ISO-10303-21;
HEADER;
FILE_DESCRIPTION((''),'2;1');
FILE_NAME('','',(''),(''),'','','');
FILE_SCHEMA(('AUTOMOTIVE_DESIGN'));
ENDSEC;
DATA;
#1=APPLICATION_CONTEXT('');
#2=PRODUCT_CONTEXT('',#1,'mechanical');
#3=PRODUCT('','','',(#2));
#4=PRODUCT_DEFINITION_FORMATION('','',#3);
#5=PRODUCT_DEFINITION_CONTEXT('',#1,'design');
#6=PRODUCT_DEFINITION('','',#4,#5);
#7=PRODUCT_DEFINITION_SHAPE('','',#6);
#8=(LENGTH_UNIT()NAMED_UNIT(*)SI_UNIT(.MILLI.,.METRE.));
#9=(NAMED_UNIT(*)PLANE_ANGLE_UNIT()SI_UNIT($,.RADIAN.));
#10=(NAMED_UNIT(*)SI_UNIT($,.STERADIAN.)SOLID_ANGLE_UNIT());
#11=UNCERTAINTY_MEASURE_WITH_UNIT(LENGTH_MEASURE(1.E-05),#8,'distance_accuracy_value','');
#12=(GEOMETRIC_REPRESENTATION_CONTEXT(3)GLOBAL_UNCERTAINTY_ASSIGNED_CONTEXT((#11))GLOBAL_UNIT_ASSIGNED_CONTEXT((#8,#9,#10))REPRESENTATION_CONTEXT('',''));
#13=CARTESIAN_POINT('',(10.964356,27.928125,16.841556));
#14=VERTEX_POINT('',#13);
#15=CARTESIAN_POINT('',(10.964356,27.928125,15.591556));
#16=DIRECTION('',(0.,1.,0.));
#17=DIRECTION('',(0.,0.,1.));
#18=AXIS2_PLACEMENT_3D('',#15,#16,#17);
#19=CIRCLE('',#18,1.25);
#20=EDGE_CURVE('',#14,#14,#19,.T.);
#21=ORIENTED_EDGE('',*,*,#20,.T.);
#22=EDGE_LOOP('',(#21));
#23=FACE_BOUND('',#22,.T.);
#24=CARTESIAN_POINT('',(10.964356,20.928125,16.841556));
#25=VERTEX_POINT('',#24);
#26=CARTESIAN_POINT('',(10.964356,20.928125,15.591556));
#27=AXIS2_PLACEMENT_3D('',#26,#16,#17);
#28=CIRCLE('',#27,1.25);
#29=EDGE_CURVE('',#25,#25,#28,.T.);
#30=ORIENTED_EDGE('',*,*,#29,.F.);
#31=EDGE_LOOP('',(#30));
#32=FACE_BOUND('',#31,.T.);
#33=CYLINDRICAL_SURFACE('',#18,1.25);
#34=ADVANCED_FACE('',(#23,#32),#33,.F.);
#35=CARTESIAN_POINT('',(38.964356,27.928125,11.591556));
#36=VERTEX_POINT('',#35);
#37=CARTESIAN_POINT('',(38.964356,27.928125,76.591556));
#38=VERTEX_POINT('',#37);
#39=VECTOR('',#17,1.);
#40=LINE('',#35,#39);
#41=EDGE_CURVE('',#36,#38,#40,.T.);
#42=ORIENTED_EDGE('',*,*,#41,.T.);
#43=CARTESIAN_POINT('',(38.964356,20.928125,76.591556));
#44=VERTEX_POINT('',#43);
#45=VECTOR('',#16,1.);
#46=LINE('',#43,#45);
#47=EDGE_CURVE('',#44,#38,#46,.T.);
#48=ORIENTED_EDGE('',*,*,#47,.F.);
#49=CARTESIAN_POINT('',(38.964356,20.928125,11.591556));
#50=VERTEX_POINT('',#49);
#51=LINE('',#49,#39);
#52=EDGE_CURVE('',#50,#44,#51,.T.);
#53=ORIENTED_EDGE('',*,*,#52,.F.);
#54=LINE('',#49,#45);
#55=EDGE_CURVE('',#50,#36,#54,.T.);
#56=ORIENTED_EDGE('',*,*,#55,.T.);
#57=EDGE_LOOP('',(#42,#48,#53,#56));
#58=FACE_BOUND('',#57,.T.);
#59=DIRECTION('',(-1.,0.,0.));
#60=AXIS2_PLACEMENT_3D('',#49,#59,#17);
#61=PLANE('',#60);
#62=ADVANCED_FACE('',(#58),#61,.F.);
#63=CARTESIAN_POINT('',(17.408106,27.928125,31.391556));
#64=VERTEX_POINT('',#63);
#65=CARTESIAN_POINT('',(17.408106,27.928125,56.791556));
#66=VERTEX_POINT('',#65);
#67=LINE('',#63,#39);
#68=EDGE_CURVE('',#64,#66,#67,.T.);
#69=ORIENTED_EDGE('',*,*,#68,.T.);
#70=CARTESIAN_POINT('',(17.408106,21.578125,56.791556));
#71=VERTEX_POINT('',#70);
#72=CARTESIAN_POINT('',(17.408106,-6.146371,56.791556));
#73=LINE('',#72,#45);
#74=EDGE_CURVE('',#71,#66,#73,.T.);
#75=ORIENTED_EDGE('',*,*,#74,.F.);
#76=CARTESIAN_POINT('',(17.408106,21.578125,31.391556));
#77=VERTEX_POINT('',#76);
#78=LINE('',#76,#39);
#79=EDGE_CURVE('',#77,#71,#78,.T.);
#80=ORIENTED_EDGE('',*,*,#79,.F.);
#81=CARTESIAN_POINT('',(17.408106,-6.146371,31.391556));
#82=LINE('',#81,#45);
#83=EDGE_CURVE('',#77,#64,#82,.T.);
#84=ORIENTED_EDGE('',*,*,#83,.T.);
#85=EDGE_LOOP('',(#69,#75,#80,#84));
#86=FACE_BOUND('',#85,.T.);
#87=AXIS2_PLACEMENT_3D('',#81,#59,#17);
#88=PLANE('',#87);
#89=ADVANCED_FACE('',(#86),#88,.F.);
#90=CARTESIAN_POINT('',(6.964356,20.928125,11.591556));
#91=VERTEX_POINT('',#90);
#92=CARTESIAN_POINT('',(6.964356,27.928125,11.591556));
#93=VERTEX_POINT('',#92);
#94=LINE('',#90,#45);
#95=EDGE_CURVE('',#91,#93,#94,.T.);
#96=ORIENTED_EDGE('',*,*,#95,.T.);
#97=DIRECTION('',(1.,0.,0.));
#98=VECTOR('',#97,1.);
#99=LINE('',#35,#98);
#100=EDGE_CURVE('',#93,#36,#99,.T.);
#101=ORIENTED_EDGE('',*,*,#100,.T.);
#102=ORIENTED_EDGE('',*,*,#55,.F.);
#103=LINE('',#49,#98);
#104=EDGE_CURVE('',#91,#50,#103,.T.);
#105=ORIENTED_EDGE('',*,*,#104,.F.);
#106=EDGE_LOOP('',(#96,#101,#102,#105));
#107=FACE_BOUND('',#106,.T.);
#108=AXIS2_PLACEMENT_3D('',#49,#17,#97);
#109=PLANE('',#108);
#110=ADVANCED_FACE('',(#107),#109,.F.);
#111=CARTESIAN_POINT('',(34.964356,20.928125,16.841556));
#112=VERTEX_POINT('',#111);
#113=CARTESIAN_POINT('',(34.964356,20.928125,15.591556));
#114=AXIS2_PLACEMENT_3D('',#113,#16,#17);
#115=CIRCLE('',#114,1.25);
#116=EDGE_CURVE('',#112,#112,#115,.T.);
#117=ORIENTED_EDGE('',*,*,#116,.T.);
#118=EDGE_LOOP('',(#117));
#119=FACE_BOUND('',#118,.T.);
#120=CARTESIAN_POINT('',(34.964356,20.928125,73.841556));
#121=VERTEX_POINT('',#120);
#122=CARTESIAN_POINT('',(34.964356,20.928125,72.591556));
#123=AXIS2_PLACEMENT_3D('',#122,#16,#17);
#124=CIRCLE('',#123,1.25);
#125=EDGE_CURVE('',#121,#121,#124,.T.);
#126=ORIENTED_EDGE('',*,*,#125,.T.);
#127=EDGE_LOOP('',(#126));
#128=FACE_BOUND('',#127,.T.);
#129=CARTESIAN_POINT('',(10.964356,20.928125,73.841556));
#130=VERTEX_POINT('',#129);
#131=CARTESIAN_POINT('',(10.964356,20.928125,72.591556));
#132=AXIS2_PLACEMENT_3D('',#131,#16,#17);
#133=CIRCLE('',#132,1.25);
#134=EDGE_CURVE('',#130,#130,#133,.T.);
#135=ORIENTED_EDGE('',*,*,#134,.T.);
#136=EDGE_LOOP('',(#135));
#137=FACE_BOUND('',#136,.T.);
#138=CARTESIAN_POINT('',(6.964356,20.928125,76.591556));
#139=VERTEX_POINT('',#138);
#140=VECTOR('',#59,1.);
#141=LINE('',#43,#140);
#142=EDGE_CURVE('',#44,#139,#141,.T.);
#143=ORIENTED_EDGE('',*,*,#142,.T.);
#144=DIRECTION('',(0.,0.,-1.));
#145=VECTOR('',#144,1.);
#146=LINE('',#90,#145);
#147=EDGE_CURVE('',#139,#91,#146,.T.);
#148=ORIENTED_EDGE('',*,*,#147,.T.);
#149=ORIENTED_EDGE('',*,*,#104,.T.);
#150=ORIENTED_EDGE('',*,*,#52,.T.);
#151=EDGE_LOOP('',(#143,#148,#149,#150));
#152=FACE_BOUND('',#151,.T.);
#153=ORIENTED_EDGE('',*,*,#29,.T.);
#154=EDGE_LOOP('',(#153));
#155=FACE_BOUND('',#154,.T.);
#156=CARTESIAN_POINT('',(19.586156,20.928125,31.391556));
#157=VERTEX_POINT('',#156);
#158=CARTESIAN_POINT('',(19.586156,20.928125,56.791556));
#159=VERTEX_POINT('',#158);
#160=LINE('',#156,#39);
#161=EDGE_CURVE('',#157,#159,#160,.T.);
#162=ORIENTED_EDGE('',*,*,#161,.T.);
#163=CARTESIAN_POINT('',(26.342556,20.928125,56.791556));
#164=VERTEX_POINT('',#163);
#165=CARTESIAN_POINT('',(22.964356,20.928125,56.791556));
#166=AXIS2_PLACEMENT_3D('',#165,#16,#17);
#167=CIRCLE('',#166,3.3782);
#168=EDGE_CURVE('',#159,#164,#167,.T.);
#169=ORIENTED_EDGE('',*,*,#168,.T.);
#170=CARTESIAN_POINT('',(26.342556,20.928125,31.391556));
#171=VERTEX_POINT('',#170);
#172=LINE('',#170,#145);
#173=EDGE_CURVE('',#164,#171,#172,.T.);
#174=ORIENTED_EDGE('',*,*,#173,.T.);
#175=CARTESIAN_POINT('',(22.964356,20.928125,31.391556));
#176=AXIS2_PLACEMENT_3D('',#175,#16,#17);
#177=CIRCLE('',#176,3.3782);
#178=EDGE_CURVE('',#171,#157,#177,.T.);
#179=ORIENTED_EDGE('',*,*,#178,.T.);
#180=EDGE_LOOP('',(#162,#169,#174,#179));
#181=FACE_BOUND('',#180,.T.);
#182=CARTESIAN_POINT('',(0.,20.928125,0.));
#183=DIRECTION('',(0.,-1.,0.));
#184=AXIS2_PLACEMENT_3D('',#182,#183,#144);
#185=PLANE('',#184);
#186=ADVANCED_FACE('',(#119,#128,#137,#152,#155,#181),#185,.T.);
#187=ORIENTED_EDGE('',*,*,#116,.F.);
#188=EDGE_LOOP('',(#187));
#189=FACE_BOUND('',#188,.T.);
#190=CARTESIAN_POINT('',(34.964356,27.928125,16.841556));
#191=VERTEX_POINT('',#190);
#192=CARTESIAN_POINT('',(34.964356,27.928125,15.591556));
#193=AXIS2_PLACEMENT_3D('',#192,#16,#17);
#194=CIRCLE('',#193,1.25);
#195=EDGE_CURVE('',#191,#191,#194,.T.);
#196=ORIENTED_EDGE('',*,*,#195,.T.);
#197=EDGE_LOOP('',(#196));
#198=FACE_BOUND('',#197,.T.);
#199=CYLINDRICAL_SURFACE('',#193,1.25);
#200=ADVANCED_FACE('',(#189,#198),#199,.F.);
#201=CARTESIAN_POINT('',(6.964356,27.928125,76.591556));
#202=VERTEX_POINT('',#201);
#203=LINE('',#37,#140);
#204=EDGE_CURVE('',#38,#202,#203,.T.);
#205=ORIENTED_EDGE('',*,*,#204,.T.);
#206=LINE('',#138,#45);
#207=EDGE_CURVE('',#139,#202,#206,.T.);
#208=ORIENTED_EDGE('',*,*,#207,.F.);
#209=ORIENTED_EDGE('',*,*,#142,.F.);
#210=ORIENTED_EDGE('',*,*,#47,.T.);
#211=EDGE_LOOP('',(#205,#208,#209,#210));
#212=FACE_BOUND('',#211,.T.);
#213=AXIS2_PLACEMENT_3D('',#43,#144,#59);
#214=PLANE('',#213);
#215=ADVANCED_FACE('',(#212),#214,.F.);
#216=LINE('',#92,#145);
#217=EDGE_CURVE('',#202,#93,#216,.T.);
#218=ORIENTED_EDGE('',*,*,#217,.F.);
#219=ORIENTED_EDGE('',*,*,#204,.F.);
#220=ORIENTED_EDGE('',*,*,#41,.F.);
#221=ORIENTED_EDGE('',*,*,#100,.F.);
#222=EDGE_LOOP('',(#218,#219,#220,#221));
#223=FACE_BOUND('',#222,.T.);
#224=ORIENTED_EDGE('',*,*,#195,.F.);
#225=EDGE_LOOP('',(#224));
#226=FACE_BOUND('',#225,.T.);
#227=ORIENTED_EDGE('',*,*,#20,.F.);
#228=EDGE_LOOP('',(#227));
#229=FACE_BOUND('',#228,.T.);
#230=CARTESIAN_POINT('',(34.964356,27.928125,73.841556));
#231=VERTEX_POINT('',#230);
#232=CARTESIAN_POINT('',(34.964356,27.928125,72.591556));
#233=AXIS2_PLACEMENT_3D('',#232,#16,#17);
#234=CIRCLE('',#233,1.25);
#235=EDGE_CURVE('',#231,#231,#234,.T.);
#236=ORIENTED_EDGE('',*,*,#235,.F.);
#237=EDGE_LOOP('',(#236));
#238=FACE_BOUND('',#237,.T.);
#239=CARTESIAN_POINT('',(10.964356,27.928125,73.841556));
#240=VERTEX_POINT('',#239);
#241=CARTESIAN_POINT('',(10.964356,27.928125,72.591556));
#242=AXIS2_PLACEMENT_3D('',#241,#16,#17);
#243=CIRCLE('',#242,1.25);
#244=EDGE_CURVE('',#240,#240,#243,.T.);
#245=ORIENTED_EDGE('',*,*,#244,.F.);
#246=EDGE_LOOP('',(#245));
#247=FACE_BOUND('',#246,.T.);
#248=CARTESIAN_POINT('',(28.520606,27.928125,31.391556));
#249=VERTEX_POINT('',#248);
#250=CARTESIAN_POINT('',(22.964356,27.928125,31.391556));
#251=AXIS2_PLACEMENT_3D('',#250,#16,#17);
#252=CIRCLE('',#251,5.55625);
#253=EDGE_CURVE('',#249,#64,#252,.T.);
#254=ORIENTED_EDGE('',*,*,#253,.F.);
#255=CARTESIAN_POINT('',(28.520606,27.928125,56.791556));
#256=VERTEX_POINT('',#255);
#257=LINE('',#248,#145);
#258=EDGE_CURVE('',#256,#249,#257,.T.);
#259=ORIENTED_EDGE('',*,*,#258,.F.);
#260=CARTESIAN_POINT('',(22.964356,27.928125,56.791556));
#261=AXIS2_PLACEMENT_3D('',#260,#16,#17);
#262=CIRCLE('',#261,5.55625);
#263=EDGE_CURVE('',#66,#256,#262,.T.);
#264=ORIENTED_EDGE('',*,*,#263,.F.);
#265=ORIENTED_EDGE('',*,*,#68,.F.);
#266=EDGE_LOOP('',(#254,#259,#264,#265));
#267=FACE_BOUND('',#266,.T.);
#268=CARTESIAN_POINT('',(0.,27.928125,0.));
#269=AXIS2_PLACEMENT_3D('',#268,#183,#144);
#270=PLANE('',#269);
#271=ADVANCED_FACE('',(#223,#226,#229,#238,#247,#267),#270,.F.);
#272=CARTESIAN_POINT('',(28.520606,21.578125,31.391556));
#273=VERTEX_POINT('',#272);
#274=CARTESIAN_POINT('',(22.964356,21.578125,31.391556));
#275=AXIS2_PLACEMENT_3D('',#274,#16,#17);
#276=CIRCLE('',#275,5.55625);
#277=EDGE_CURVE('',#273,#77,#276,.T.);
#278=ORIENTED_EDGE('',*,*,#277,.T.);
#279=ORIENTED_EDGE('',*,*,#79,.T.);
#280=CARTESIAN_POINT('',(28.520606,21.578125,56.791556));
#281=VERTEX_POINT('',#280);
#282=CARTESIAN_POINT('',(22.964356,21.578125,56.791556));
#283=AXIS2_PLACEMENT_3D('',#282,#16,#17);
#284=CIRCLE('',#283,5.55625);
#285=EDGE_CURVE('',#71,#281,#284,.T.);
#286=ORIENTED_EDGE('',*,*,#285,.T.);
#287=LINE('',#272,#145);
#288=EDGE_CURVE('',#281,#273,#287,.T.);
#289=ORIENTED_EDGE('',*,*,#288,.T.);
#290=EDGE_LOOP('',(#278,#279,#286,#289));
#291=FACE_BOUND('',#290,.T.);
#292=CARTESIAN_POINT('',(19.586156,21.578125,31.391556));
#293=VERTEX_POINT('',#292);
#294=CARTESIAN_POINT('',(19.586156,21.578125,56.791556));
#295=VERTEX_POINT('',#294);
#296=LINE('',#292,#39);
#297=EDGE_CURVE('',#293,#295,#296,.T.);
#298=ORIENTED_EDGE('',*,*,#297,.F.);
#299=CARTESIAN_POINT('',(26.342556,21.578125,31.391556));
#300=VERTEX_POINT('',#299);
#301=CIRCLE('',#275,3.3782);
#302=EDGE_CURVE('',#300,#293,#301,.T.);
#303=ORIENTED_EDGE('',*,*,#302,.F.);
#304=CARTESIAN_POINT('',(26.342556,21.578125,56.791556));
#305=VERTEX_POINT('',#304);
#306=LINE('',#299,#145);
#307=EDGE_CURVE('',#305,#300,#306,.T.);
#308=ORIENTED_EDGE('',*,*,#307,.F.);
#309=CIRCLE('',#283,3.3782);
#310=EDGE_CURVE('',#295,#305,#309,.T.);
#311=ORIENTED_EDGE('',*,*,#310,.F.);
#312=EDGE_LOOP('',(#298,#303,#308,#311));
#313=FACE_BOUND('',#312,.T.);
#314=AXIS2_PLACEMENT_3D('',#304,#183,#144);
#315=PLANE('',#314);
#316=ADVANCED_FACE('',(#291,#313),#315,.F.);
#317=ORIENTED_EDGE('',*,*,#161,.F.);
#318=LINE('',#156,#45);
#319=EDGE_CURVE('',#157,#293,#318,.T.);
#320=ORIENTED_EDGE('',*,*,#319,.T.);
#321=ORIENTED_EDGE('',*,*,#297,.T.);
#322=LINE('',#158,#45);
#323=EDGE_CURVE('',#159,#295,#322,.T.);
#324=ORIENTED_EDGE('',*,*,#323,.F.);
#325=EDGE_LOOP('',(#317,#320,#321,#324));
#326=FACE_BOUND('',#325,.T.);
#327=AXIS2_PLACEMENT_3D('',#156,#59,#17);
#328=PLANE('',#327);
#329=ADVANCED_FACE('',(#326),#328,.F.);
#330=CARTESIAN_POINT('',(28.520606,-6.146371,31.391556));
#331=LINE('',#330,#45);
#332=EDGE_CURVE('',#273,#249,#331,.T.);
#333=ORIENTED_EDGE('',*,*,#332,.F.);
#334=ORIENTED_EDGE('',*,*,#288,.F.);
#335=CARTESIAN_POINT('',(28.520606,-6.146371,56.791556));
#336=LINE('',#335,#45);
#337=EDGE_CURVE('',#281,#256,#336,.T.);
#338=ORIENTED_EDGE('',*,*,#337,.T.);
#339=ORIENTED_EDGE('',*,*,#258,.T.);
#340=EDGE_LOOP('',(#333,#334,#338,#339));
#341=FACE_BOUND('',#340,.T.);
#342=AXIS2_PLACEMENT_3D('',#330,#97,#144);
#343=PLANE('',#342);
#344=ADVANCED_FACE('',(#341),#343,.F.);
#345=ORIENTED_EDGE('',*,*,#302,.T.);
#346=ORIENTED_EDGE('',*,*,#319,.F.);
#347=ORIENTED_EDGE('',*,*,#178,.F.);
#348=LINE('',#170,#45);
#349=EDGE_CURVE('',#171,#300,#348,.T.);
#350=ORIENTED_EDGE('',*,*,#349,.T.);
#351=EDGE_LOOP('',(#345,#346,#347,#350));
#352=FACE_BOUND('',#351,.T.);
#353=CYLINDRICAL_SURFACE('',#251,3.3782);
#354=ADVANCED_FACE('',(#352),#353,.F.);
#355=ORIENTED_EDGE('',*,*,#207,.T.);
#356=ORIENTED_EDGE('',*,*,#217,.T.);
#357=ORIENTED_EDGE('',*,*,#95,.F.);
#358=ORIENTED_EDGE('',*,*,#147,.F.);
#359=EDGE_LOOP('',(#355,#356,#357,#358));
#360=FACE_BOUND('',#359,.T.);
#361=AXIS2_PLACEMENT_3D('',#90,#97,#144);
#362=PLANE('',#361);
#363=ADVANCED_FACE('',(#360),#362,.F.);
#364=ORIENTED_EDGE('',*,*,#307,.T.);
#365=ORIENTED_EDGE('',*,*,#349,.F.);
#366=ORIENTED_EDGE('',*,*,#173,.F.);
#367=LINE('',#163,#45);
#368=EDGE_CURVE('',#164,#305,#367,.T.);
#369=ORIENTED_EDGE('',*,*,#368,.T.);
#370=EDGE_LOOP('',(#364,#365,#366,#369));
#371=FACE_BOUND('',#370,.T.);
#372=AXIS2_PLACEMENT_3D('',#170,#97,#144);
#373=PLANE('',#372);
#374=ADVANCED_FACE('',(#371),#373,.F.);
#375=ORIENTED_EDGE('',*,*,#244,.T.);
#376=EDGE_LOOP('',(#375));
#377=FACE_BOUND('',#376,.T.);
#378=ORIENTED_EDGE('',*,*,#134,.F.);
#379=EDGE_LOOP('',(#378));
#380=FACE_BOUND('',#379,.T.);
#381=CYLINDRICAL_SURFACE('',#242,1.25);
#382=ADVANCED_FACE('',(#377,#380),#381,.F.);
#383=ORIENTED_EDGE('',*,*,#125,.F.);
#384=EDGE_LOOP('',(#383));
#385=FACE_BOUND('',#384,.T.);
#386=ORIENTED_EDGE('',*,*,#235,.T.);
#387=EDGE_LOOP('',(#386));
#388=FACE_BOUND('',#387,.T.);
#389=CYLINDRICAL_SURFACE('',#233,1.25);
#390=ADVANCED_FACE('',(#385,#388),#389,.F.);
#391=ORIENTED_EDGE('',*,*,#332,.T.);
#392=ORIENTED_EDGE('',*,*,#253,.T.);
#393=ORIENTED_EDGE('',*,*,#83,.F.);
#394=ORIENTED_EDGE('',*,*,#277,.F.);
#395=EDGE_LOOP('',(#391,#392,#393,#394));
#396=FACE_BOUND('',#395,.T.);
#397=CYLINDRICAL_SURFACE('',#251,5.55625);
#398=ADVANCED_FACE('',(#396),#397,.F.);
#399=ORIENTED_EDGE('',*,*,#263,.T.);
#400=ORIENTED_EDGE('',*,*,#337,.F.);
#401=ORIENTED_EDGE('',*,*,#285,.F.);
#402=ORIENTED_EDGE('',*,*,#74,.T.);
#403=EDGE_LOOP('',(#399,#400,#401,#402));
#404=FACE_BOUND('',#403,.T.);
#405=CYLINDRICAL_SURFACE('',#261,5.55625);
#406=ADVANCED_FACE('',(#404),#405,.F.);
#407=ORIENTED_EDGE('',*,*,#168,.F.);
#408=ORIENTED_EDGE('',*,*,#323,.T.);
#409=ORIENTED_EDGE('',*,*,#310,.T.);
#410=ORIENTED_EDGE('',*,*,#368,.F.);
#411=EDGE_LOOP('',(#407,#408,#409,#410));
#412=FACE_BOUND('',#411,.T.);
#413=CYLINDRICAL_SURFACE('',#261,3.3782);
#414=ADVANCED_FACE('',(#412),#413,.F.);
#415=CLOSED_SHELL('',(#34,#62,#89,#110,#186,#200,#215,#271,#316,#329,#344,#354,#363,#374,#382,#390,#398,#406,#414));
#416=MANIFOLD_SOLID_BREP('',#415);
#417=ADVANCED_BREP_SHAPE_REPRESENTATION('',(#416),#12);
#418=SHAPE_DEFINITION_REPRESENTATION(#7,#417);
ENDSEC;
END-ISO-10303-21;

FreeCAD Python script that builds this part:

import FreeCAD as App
import Part
import Sketcher

V = App.Vector
Q = App.Units.Quantity


def add_polygon(sketch, points):
    """Adds a closed chain of lines whose ends are joined by coincident constraints."""
    first, n = sketch.GeometryCount, len(points)
    for a, b in zip(points, points[1:] + points[:1]):
        sketch.addGeometry(Part.LineSegment(App.Vector(*a, 0), App.Vector(*b, 0)), False)
    for i in range(n):
        sketch.addConstraint(Sketcher.Constraint("Coincident", first + i, 2, first + (i + 1) % n, 1))

doc = App.newDocument("Part")
body = doc.addObject("PartDesign::Body", "Body")

# Sketch on XZ plane
sketch1 = body.newObject("Sketcher::SketchObject", "Sketch")
sketch1.AttachmentSupport = (doc.getObject("XZ_Plane"), [""])
sketch1.MapMode = "FlatFace"
sketch1.AttachmentOffset = App.Placement(V(0, 0, -27.928125), App.Rotation())
add_polygon(sketch1, [(6.964356, 76.591556), (6.964356, 11.591556), (38.964356, 11.591556), (38.964356, 76.591556)])  # lines 0-3
sketch1.addConstraint([
    Sketcher.Constraint("Vertical", 0),
    Sketcher.Constraint("Horizontal", 1),
    Sketcher.Constraint("Vertical", 2),
    Sketcher.Constraint("Horizontal", 3),
    Sketcher.Constraint("DistanceX", 1, 1, 1, 2, Q("32 mm")),
    Sketcher.Constraint("DistanceY", 0, 2, 0, 1, Q("65 mm")),
    Sketcher.Constraint("DistanceX", -1, 1, 0, 2, Q("6.964356 mm")),
    Sketcher.Constraint("DistanceY", -1, 1, 0, 2, Q("11.591556 mm")),
])
pad1 = body.newObject("PartDesign::Pad", "Pad")
pad1.Profile = sketch1
pad1.Length = 7

# Sketch on XZ plane
sketch2 = body.newObject("Sketcher::SketchObject", "Sketch001")
sketch2.AttachmentSupport = (doc.getObject("XZ_Plane"), [""])
sketch2.MapMode = "FlatFace"
sketch2.AttachmentOffset = App.Placement(V(0, 0, -27.928125), App.Rotation())
sketch2.addGeometry([
    Part.Circle(V(10.964356, 15.591556, 0), V(0, 0, 1), 1.25),
    Part.Circle(V(34.964356, 15.591556, 0), V(0, 0, 1), 1.25),
    Part.Circle(V(34.964356, 72.591556, 0), V(0, 0, 1), 1.25),
    Part.Circle(V(10.964356, 72.591556, 0), V(0, 0, 1), 1.25),
], False)
sketch2.addConstraint([
    Sketcher.Constraint("Equal", 0, 1),
    Sketcher.Constraint("Equal", 1, 2),
    Sketcher.Constraint("Equal", 2, 3),
    Sketcher.Constraint("Horizontal", 0, 3, 1, 3),
    Sketcher.Constraint("Horizontal", 2, 3, 3, 3),
    Sketcher.Constraint("Vertical", 1, 3, 2, 3),
    Sketcher.Constraint("Vertical", 0, 3, 3, 3),
    Sketcher.Constraint("Diameter", 0, Q("2.5 mm")),
    Sketcher.Constraint("DistanceX", 0, 3, 1, 3, Q("24 mm")),
    Sketcher.Constraint("DistanceY", 1, 3, 2, 3, Q("57 mm")),
    Sketcher.Constraint("DistanceX", -1, 1, 0, 3, Q("10.964356 mm")),
    Sketcher.Constraint("DistanceY", -1, 1, 0, 3, Q("15.591556 mm")),
])
doc.recompute()
hole = body.newObject("PartDesign::Hole", "Hole")
hole.Profile = sketch2
hole.ThreadType = "None"
hole.Diameter = 2.5
hole.DepthType = "ThroughAll"
hole.Reversed = True

# Sketch on XZ plane
sketch3 = body.newObject("Sketcher::SketchObject", "Sketch002")
sketch3.AttachmentSupport = (doc.getObject("XZ_Plane"), [""])
sketch3.MapMode = "FlatFace"
sketch3.AttachmentOffset = App.Placement(V(0, 0, -27.928125), App.Rotation())
sketch3.addGeometry([
    Part.Circle(V(22.964356, 31.391556, 0), V(0, 0, 1), 3.3782),
    Part.Circle(V(22.964356, 56.791556, 0), V(0, 0, 1), 3.3782),
], False)
sketch3.addConstraint([
    Sketcher.Constraint("Equal", 0, 1),
    Sketcher.Constraint("Vertical", 0, 3, 1, 3),
    Sketcher.Constraint("Diameter", 0, Q("6.7564 mm")),
    Sketcher.Constraint("DistanceY", 0, 3, 1, 3, Q("25.4 mm")),
    Sketcher.Constraint("DistanceX", -1, 1, 0, 3, Q("22.964356 mm")),
    Sketcher.Constraint("DistanceY", -1, 1, 0, 3, Q("31.391556 mm")),
])
doc.recompute()
hole2 = body.newObject("PartDesign::Hole", "Hole001")
hole2.Profile = sketch3
hole2.ThreadType = "None"
hole2.Diameter = 6.7564
hole2.DepthType = "ThroughAll"
hole2.HoleCutType = "Counterbore"
hole2.HoleCutDiameter = 11.1125
hole2.HoleCutDepth = 6.35
hole2.Reversed = True

# Sketch on XZ plane
sketch4 = body.newObject("Sketcher::SketchObject", "Sketch003")
sketch4.AttachmentSupport = (doc.getObject("XZ_Plane"), [""])
sketch4.MapMode = "FlatFace"
sketch4.AttachmentOffset = App.Placement(V(0, 0, -27.928125), App.Rotation())
add_polygon(sketch4, [(17.408106, 31.391556), (17.408106, 56.791556), (28.520606, 56.791556), (28.520606, 31.391556)])  # lines 0-3
sketch4.addConstraint([
    Sketcher.Constraint("Vertical", 0),
    Sketcher.Constraint("Horizontal", 1),
    Sketcher.Constraint("Vertical", 2),
    Sketcher.Constraint("Horizontal", 3),
    Sketcher.Constraint("DistanceY", 0, 1, 0, 2, Q("25.4 mm")),
    Sketcher.Constraint("DistanceX", 1, 1, 1, 2, Q("11.1125 mm")),
    Sketcher.Constraint("DistanceX", -1, 1, 0, 2, Q("17.408106 mm")),
    Sketcher.Constraint("DistanceY", -1, 1, 0, 2, Q("56.791556 mm")),
])
pocket1 = body.newObject("PartDesign::Pocket", "Pocket")
pocket1.Profile = sketch4
pocket1.Length = 6.35
pocket1.Reversed = True

# Sketch on XZ plane
sketch5 = body.newObject("Sketcher::SketchObject", "Sketch004")
sketch5.AttachmentSupport = (doc.getObject("XZ_Plane"), [""])
sketch5.MapMode = "FlatFace"
sketch5.AttachmentOffset = App.Placement(V(0, 0, -21.578125), App.Rotation())
add_polygon(sketch5, [(19.586156, 31.391556), (19.586156, 56.791556), (26.342556, 56.791556), (26.342556, 31.391556)])  # lines 0-3
sketch5.addConstraint([
    Sketcher.Constraint("Vertical", 0),
    Sketcher.Constraint("Horizontal", 1),
    Sketcher.Constraint("Vertical", 2),
    Sketcher.Constraint("Horizontal", 3),
    Sketcher.Constraint("DistanceY", 0, 1, 0, 2, Q("25.4 mm")),
    Sketcher.Constraint("DistanceX", 1, 1, 1, 2, Q("6.7564 mm")),
    Sketcher.Constraint("DistanceX", -1, 1, 0, 2, Q("19.586156 mm")),
    Sketcher.Constraint("DistanceY", -1, 1, 0, 2, Q("56.791556 mm")),
])
pocket2 = body.newObject("PartDesign::Pocket", "Pocket001")
pocket2.Profile = sketch5
pocket2.Type = "ThroughAll"
pocket2.Reversed = True

doc.recompute()
